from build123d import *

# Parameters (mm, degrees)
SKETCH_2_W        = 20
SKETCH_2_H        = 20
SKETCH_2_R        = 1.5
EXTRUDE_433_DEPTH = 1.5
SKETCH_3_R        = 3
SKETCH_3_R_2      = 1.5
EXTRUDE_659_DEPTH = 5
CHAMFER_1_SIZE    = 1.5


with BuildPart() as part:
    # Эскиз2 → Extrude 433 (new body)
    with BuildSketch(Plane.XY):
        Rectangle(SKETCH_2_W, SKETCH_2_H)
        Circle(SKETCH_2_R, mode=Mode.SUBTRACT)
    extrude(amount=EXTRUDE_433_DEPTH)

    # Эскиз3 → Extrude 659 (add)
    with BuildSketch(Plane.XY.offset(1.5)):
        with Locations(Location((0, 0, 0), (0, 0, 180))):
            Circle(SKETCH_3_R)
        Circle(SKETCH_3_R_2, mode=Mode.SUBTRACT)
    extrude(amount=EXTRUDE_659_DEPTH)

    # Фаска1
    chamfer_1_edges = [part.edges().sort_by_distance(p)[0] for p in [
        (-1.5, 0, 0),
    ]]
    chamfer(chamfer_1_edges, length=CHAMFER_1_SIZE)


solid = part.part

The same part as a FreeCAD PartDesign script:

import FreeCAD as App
import Part
import Sketcher
from FreeCAD import Vector
Q = App.Units.Quantity


def edges_at(feature, points):
    """Names of the edges that pass closest to the given points."""
    edges = feature.Shape.Edges
    near = lambda p: min(range(len(edges)), key=lambda i: edges[i].distToShape(Part.Vertex(*p))[0])
    return sorted({f"Edge{near(p) + 1}" for p in points})


def add_polygon(sketch, points):
    """Adds a closed chain of lines whose ends are joined by coincident constraints."""
    first, n = sketch.GeometryCount, len(points)
    for a, b in zip(points, points[1:] + points[:1]):
        sketch.addGeometry(Part.LineSegment(App.Vector(*a, 0), App.Vector(*b, 0)), False)
    for i in range(n):
        sketch.addConstraint(Sketcher.Constraint("Coincident", first + i, 2, first + (i + 1) % n, 1))

doc = App.newDocument("Part")
body = doc.addObject("PartDesign::Body", "Body")

sketch1 = body.newObject("Sketcher::SketchObject", "Sketch")
sketch1.AttachmentSupport = (doc.getObject("XY_Plane"), [""])
sketch1.MapMode = "FlatFace"
add_polygon(sketch1, [(-10, 10), (-10, -10), (10, -10), (10, 10)])
sketch1.addGeometry(Part.Circle(Vector(0, 0, 0), Vector(0, 0, 1), 1.5), False)
sketch1.addConstraint(Sketcher.Constraint("Vertical", 0))
sketch1.addConstraint(Sketcher.Constraint("Horizontal", 1))
sketch1.addConstraint(Sketcher.Constraint("Vertical", 2))
sketch1.addConstraint(Sketcher.Constraint("Horizontal", 3))
sketch1.addConstraint(Sketcher.Constraint("Coincident", 4, 3, -1, 1))
sketch1.addConstraint(Sketcher.Constraint("Symmetric", 0, 2, 2, 2, -1, 1))
sketch1.addConstraint(Sketcher.Constraint("Equal", 3, 0))
sketch1.addConstraint(Sketcher.Constraint("Diameter", 4, Q("3 mm")))
sketch1.addConstraint(Sketcher.Constraint("DistanceX", 1, 1, 1, 2, Q("20 mm")))
pad1 = body.newObject("PartDesign::Pad", "Pad")
pad1.Profile = sketch1
pad1.Length = 1.5

sketch2 = body.newObject("Sketcher::SketchObject", "Sketch001")
sketch2.AttachmentSupport = (doc.getObject("XY_Plane"), [""])
sketch2.MapMode = "FlatFace"
sketch2.AttachmentOffset = App.Placement(Vector(0, 0, 1.5), App.Rotation())
sketch2.addGeometry(Part.Circle(Vector(0, 0, 0), Vector(0, 0, 1), 3), False)
sketch2.addGeometry(Part.Circle(Vector(0, 0, 0), Vector(0, 0, 1), 1.5), False)
sketch2.addConstraint(Sketcher.Constraint("Coincident", 0, 3, -1, 1))
sketch2.addConstraint(Sketcher.Constraint("Coincident", 1, 3, -1, 1))
sketch2.addConstraint(Sketcher.Constraint("Diameter", 0, Q("6 mm")))
sketch2.addConstraint(Sketcher.Constraint("Diameter", 1, Q("3 mm")))
pad2 = body.newObject("PartDesign::Pad", "Pad001")
pad2.Profile = sketch2
pad2.Length = 5
doc.recompute()

chamfer = body.newObject("PartDesign::Chamfer", "Chamfer")
chamfer.Base = (pad2, edges_at(pad2, [(-1.5, 0, 0)]))
chamfer.Size = 1.5

doc.recompute()
